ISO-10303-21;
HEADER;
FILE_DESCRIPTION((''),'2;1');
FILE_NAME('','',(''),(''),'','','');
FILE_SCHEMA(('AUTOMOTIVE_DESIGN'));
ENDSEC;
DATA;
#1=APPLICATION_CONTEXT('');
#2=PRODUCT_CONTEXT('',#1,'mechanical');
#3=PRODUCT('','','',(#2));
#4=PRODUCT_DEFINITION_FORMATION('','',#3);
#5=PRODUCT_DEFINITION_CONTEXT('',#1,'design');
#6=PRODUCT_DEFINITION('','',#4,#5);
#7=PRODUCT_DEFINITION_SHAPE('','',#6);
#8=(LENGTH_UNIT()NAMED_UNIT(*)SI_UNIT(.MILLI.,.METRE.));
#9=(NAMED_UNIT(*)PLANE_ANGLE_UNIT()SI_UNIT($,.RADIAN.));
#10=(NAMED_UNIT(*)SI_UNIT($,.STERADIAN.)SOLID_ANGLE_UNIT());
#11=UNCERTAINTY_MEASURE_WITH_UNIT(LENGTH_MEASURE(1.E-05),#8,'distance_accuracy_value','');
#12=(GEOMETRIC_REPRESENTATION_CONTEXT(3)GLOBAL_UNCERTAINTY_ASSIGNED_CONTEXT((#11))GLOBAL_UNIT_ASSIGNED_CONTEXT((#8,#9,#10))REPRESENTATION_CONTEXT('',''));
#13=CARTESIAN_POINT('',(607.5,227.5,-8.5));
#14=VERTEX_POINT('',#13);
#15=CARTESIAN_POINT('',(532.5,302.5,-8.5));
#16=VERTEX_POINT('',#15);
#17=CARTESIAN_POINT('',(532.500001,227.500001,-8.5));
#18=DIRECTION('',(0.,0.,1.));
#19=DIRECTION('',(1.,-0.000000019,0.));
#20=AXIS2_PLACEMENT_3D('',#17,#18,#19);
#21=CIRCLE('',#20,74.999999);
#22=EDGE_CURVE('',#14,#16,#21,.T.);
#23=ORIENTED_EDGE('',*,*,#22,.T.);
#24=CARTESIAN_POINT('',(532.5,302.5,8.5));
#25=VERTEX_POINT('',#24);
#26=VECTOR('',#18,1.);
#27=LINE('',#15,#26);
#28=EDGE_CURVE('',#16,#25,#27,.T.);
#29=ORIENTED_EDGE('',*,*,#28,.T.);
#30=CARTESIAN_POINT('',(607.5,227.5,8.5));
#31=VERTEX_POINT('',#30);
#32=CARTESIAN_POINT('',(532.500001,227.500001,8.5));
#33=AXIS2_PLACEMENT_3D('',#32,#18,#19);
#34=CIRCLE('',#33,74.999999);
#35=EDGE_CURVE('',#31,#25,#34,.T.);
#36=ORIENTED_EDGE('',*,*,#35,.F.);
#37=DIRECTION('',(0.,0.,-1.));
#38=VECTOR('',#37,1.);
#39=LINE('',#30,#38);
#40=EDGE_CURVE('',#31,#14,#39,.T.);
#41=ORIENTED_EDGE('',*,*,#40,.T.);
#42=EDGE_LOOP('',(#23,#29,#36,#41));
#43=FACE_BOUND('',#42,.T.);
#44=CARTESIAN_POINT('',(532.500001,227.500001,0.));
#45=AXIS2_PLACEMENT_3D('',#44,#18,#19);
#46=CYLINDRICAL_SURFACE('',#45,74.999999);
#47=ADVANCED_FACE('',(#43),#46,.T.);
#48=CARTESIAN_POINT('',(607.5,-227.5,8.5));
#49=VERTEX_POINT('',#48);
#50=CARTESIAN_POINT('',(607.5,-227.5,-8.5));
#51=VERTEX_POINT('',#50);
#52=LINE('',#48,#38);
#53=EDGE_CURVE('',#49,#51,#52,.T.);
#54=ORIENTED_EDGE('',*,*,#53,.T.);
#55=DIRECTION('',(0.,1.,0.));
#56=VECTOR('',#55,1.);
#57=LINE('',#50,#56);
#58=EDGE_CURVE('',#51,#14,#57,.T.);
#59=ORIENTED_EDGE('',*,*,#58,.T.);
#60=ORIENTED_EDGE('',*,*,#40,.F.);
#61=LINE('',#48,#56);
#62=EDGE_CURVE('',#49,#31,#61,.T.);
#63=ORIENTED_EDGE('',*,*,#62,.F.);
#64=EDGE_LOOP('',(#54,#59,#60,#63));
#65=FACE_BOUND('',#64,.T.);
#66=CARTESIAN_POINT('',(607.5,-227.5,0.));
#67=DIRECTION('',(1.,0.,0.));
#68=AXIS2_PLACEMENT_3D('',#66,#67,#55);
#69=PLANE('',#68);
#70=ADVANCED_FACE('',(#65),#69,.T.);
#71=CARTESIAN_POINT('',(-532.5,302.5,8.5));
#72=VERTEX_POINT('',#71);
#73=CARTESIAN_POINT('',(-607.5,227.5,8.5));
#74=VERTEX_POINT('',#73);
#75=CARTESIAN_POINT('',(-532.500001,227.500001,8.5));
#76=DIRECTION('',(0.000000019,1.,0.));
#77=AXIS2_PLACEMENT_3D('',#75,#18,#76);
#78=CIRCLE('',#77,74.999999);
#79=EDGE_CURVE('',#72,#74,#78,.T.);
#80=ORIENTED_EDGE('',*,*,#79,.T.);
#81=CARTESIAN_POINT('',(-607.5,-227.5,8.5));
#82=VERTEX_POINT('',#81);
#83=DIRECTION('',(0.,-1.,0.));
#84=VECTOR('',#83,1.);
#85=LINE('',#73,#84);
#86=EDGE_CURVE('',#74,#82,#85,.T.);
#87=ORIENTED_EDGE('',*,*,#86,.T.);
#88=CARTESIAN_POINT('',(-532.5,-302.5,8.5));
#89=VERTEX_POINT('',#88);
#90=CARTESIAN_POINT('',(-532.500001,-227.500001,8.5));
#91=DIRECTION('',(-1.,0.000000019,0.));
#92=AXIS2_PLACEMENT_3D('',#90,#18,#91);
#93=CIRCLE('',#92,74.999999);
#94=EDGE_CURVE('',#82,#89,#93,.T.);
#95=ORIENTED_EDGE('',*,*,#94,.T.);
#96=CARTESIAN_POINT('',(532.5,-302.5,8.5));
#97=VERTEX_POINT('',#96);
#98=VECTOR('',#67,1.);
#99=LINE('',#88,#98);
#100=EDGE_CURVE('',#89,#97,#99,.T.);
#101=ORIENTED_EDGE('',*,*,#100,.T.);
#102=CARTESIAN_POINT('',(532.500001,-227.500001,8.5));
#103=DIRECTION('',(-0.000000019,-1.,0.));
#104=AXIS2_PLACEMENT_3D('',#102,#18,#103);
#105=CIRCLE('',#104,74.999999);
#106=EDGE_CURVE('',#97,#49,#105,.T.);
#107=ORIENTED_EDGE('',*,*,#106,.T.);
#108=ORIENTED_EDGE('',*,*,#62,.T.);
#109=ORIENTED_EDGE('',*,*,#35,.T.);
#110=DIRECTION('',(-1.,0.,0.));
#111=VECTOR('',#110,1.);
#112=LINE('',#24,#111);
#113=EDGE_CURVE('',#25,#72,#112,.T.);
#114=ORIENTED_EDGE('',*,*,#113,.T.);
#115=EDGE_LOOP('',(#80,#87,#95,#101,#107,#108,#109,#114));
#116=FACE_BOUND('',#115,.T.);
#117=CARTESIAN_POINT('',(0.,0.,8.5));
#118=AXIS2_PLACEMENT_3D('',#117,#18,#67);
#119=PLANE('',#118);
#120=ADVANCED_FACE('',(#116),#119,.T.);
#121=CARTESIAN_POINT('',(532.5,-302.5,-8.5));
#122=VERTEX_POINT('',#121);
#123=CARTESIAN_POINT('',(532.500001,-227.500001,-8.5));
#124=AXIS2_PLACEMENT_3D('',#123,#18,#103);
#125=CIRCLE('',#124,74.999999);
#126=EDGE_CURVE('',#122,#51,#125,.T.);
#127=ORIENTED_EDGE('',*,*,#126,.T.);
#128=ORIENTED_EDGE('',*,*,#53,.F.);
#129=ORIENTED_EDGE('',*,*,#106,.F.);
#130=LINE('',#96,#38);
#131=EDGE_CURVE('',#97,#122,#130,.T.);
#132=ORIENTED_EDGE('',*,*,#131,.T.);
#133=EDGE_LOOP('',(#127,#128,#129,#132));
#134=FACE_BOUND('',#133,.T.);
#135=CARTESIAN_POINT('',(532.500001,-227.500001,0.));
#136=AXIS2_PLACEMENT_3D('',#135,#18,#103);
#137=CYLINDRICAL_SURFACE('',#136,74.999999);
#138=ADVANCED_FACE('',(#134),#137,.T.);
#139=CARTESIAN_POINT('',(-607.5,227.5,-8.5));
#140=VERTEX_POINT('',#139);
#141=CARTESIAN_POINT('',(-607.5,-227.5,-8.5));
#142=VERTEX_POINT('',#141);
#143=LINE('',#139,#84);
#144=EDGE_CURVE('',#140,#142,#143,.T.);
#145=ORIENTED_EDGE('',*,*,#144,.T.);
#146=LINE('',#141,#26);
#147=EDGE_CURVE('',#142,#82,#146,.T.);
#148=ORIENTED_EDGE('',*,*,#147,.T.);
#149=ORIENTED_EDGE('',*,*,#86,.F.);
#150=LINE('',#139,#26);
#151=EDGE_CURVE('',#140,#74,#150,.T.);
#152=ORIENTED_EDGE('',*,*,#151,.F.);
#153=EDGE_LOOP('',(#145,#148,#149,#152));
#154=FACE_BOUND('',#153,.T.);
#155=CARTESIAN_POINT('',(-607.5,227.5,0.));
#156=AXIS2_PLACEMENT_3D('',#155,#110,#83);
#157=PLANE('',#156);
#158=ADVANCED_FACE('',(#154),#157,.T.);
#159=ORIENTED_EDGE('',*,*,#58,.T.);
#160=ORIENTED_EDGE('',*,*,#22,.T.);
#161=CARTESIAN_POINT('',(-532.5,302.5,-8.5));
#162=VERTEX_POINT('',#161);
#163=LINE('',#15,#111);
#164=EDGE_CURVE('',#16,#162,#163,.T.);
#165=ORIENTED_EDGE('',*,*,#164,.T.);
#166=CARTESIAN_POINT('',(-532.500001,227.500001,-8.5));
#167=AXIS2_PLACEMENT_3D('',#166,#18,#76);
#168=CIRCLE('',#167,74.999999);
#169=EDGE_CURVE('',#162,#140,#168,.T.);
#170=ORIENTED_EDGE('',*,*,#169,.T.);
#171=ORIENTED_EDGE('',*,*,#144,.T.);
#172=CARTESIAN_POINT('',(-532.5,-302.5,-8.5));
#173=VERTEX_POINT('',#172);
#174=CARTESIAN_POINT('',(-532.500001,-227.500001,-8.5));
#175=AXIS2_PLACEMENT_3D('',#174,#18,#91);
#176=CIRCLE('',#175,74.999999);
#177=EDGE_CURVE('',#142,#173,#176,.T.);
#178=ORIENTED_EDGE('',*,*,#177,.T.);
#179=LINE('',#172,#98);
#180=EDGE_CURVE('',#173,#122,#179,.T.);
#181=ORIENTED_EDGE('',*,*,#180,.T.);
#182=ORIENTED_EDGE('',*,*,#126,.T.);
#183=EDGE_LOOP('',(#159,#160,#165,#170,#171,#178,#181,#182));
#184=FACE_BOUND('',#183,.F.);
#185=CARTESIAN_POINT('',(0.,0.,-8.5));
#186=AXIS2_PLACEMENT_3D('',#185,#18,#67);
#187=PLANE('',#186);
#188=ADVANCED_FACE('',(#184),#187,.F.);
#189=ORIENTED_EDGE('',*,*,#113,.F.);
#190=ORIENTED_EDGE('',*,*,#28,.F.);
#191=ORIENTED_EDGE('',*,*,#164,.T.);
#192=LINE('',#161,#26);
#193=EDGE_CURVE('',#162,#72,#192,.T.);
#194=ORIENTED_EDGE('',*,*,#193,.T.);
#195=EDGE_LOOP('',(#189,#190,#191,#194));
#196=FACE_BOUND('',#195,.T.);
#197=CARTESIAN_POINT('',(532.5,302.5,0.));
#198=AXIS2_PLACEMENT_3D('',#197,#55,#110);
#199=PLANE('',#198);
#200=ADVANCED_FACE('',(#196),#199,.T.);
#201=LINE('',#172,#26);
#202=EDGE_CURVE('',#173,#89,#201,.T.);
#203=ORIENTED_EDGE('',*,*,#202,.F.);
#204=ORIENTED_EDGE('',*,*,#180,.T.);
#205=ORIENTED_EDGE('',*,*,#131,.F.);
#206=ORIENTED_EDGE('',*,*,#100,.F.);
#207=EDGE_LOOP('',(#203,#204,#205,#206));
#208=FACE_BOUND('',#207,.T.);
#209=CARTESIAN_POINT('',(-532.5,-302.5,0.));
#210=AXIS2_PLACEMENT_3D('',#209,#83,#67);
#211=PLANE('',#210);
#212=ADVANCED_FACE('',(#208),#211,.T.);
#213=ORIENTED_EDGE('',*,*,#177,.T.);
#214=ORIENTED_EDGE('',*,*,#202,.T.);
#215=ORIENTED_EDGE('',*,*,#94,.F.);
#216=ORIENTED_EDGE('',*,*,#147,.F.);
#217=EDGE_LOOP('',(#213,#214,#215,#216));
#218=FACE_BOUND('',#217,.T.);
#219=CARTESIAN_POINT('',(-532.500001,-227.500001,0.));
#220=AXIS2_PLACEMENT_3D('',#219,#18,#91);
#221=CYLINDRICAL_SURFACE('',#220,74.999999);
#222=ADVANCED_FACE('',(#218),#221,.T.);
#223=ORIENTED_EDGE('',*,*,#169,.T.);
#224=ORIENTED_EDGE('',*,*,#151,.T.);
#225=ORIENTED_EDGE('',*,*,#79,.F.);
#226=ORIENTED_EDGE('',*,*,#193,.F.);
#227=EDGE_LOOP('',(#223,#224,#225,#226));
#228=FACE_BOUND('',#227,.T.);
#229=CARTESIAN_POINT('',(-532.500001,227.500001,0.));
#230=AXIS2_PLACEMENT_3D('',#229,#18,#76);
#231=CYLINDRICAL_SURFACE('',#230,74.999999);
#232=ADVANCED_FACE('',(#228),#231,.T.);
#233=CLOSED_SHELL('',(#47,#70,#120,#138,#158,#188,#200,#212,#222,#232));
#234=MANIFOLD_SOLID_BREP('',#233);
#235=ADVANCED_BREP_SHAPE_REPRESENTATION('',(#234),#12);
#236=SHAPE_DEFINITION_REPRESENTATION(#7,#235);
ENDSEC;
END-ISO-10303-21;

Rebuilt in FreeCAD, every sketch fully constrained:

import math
import FreeCAD as App
import Part
import Sketcher
Q = App.Units.Quantity

doc = App.newDocument("Part")
body = doc.addObject("PartDesign::Body", "Body")

sketch1 = doc.addObject("Sketcher::SketchObject", "Sketch")
body.addObject(sketch1)
sketch1.AttachmentSupport = (doc.XY_Plane, [""])
sketch1.MapMode = "FlatFace"
sketch1.addGeometry([
    Part.ArcOfCircle(Part.Circle(App.Vector(533, 228, 0), App.Vector(0, 0, 1), 75), math.radians(0), math.radians(90)),
    Part.LineSegment(App.Vector(532, 302, 0), App.Vector(-532, 302, 0)),
    Part.ArcOfCircle(Part.Circle(App.Vector(-533, 228, 0), App.Vector(0, 0, 1), 75), math.radians(90), math.radians(180)),
    Part.LineSegment(App.Vector(-608, 228, 0), App.Vector(-608, -228, 0)),
    Part.ArcOfCircle(Part.Circle(App.Vector(-533, -228, 0), App.Vector(0, 0, 1), 75), math.radians(180), math.radians(270)),
    Part.LineSegment(App.Vector(-532, -302, 0), App.Vector(532, -302, 0)),
    Part.ArcOfCircle(Part.Circle(App.Vector(533, -228, 0), App.Vector(0, 0, 1), 75), math.radians(-90), math.radians(0)),
    Part.LineSegment(App.Vector(608, -228, 0), App.Vector(608, 228, 0)),
], False)
sketch1.addConstraint([
    Sketcher.Constraint("Tangent", 0, 2, 1, 1),
    Sketcher.Constraint("Tangent", 1, 2, 2, 1),
    Sketcher.Constraint("Tangent", 2, 2, 3, 1),
    Sketcher.Constraint("Tangent", 3, 2, 4, 1),
    Sketcher.Constraint("Tangent", 4, 2, 5, 1),
    Sketcher.Constraint("Tangent", 5, 2, 6, 1),
    Sketcher.Constraint("Tangent", 6, 2, 7, 1),
    Sketcher.Constraint("Tangent", 7, 2, 0, 1),
    Sketcher.Constraint("Horizontal", 1),
    Sketcher.Constraint("Vertical", 3),
    Sketcher.Constraint("Horizontal", 5),
    Sketcher.Constraint("Vertical", 7),
    Sketcher.Constraint("Equal", 0, 2),
    Sketcher.Constraint("Equal", 2, 4),
    Sketcher.Constraint("Equal", 4, 6),
    Sketcher.Constraint("Symmetric", 0, 3, 4, 3, -1, 1),
    Sketcher.Constraint("Radius", 0, Q("74.999999 mm")),
    Sketcher.Constraint("DistanceX", 1, 2, 1, 1, Q("1065 mm")),
    Sketcher.Constraint("DistanceY", 3, 2, 3, 1, Q("455 mm")),
])
pad1 = doc.addObject("PartDesign::Pad", "Pad")
body.addObject(pad1)
pad1.Profile = sketch1
pad1.Length = 17
pad1.Midplane = True

doc.recompute()
